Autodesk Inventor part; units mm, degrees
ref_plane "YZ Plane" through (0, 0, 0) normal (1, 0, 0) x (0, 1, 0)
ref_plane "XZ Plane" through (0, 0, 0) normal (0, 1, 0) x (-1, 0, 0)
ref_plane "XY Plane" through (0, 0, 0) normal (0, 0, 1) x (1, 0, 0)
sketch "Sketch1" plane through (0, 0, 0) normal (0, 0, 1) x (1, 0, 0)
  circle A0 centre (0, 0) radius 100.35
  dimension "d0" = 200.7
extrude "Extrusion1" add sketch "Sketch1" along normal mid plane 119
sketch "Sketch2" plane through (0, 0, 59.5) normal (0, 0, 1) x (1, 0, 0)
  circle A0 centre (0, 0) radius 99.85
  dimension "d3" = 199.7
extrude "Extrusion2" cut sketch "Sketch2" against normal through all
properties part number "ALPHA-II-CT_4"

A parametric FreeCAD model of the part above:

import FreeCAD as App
import Part
import Sketcher
Q = App.Units.Quantity

doc = App.newDocument("Part")
params = doc.addObject("Spreadsheet::Sheet", "Params")
for row, (alias, value) in enumerate([
    ("sketch1_diameter", "200.7 mm"),
    ("pad1_length", "119 mm"),
    ("sketch2_diameter", "199.7 mm"),
], start=1):
    params.set(f"A{row}", alias)
    params.set(f"B{row}", "=" + value)
    params.setAlias(f"B{row}", alias)

body = doc.addObject("PartDesign::Body", "Body")

sketch1 = body.newObject("Sketcher::SketchObject", "Sketch")
sketch1.AttachmentSupport = (doc.getObject("XY_Plane"), [""])
sketch1.MapMode = "FlatFace"
sketch1.addGeometry(Part.Circle(App.Vector(0, 0, 0), App.Vector(0, 0, 1), 100), False)
sketch1.addConstraint(Sketcher.Constraint("Coincident", 0, 3, -1, 1))
sketch1.addConstraint(Sketcher.Constraint("Diameter", 0, Q("200.7 mm")))
sketch1.setExpression("Constraints[1]", "Params.sketch1_diameter")
pad1 = body.newObject("PartDesign::Pad", "Pad")
pad1.Profile = sketch1
pad1.setExpression("Length", "Params.pad1_length")
pad1.Midplane = True

sketch2 = body.newObject("Sketcher::SketchObject", "Sketch001")
sketch2.AttachmentSupport = (doc.getObject("XY_Plane"), [""])
sketch2.MapMode = "FlatFace"
sketch2.AttachmentOffset = App.Placement(App.Vector(0, 0, 59.5), App.Rotation())
sketch2.addGeometry(Part.Circle(App.Vector(0, 0, 0), App.Vector(0, 0, 1), 100), False)
sketch2.addConstraint(Sketcher.Constraint("Coincident", 0, 3, -1, 1))
sketch2.addConstraint(Sketcher.Constraint("Diameter", 0, Q("199.7 mm")))
sketch2.setExpression("Constraints[1]", "Params.sketch2_diameter")
pocket1 = body.newObject("PartDesign::Pocket", "Pocket")
pocket1.Profile = sketch2
pocket1.Type = "ThroughAll"

doc.recompute()
